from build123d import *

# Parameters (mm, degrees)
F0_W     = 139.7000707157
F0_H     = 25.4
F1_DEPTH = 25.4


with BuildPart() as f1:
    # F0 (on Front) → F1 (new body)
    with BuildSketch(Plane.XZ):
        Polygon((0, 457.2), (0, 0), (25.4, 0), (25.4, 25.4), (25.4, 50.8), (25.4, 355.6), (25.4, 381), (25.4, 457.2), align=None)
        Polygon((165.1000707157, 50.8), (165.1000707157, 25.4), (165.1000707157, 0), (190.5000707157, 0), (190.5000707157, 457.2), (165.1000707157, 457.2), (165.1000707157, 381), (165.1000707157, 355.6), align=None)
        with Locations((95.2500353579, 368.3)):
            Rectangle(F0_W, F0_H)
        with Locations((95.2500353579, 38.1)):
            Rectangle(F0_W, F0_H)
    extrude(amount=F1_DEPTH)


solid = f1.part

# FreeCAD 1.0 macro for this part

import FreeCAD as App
import Part
import Sketcher
from FreeCAD import Vector
Q = App.Units.Quantity


def add_polygon(sketch, points):
    """Adds a closed chain of lines whose ends are joined by coincident constraints."""
    first, n = sketch.GeometryCount, len(points)
    for a, b in zip(points, points[1:] + points[:1]):
        sketch.addGeometry(Part.LineSegment(App.Vector(*a, 0), App.Vector(*b, 0)), False)
    for i in range(n):
        sketch.addConstraint(Sketcher.Constraint("Coincident", first + i, 2, first + (i + 1) % n, 1))

doc = App.newDocument("Part")
body = doc.addObject("PartDesign::Body", "Body")

sketch1 = doc.addObject("Sketcher::SketchObject", "Sketch")
body.addObject(sketch1)
sketch1.AttachmentSupport = (doc.XZ_Plane, [""])
sketch1.MapMode = "FlatFace"
add_polygon(sketch1, [(0, 457), (0, 0), (25, 0), (25, 25), (165, 25), (165, 0), (191, 0), (191, 457), (165, 457), (165, 381), (25, 381), (25, 457)])
add_polygon(sketch1, [(25, 51), (25, 356), (165, 356), (165, 51)])
sketch1.addConstraint(Sketcher.Constraint("Vertical", 0))
sketch1.addConstraint(Sketcher.Constraint("Horizontal", 1))
sketch1.addConstraint(Sketcher.Constraint("Vertical", 2))
sketch1.addConstraint(Sketcher.Constraint("Horizontal", 3))
sketch1.addConstraint(Sketcher.Constraint("Vertical", 4))
sketch1.addConstraint(Sketcher.Constraint("Horizontal", 5))
sketch1.addConstraint(Sketcher.Constraint("Vertical", 6))
sketch1.addConstraint(Sketcher.Constraint("Horizontal", 7))
sketch1.addConstraint(Sketcher.Constraint("Vertical", 8))
sketch1.addConstraint(Sketcher.Constraint("Horizontal", 9))
sketch1.addConstraint(Sketcher.Constraint("Vertical", 10))
sketch1.addConstraint(Sketcher.Constraint("Horizontal", 11))
sketch1.addConstraint(Sketcher.Constraint("Vertical", 12))
sketch1.addConstraint(Sketcher.Constraint("Horizontal", 13))
sketch1.addConstraint(Sketcher.Constraint("Vertical", 14))
sketch1.addConstraint(Sketcher.Constraint("Horizontal", 15))
sketch1.addConstraint(Sketcher.Constraint("Coincident", 0, 2, -1, 1))
sketch1.addConstraint(Sketcher.Constraint("PointOnObject", 4, 2, -1))
sketch1.addConstraint(Sketcher.Constraint("Horizontal", 7, 2, 10, 2))
sketch1.addConstraint(Sketcher.Constraint("Vertical", 4, 2, 7, 2))
sketch1.addConstraint(Sketcher.Constraint("Vertical", 2, 2, 9, 2))
sketch1.addConstraint(Sketcher.Constraint("Vertical", 10, 2, 12, 2))
sketch1.addConstraint(Sketcher.Constraint("Vertical", 8, 2, 13, 2))
sketch1.addConstraint(Sketcher.Constraint("Equal", 1, 5))
sketch1.addConstraint(Sketcher.Constraint("Equal", 11, 2))
sketch1.addConstraint(Sketcher.Constraint("DistanceX", 1, 1, 1, 2, Q("1 in")))
sketch1.addConstraint(Sketcher.Constraint("DistanceY", 0, 2, 0, 1, Q("18 in")))
sketch1.addConstraint(Sketcher.Constraint("DistanceY", 8, 2, 8, 1, Q("3 in")))
sketch1.addConstraint(Sketcher.Constraint("DistanceY", 12, 1, 12, 2, Q("12 in")))
sketch1.addConstraint(Sketcher.Constraint("DistanceY", -1, 1, 12, 2, Q("14 in")))
sketch1.addConstraint(Sketcher.Constraint("DistanceX", 3, 1, 3, 2, 139.700071))
pad1 = doc.addObject("PartDesign::Pad", "Pad")
body.addObject(pad1)
pad1.Profile = sketch1
pad1.Length = Q("1 in")

doc.recompute()
